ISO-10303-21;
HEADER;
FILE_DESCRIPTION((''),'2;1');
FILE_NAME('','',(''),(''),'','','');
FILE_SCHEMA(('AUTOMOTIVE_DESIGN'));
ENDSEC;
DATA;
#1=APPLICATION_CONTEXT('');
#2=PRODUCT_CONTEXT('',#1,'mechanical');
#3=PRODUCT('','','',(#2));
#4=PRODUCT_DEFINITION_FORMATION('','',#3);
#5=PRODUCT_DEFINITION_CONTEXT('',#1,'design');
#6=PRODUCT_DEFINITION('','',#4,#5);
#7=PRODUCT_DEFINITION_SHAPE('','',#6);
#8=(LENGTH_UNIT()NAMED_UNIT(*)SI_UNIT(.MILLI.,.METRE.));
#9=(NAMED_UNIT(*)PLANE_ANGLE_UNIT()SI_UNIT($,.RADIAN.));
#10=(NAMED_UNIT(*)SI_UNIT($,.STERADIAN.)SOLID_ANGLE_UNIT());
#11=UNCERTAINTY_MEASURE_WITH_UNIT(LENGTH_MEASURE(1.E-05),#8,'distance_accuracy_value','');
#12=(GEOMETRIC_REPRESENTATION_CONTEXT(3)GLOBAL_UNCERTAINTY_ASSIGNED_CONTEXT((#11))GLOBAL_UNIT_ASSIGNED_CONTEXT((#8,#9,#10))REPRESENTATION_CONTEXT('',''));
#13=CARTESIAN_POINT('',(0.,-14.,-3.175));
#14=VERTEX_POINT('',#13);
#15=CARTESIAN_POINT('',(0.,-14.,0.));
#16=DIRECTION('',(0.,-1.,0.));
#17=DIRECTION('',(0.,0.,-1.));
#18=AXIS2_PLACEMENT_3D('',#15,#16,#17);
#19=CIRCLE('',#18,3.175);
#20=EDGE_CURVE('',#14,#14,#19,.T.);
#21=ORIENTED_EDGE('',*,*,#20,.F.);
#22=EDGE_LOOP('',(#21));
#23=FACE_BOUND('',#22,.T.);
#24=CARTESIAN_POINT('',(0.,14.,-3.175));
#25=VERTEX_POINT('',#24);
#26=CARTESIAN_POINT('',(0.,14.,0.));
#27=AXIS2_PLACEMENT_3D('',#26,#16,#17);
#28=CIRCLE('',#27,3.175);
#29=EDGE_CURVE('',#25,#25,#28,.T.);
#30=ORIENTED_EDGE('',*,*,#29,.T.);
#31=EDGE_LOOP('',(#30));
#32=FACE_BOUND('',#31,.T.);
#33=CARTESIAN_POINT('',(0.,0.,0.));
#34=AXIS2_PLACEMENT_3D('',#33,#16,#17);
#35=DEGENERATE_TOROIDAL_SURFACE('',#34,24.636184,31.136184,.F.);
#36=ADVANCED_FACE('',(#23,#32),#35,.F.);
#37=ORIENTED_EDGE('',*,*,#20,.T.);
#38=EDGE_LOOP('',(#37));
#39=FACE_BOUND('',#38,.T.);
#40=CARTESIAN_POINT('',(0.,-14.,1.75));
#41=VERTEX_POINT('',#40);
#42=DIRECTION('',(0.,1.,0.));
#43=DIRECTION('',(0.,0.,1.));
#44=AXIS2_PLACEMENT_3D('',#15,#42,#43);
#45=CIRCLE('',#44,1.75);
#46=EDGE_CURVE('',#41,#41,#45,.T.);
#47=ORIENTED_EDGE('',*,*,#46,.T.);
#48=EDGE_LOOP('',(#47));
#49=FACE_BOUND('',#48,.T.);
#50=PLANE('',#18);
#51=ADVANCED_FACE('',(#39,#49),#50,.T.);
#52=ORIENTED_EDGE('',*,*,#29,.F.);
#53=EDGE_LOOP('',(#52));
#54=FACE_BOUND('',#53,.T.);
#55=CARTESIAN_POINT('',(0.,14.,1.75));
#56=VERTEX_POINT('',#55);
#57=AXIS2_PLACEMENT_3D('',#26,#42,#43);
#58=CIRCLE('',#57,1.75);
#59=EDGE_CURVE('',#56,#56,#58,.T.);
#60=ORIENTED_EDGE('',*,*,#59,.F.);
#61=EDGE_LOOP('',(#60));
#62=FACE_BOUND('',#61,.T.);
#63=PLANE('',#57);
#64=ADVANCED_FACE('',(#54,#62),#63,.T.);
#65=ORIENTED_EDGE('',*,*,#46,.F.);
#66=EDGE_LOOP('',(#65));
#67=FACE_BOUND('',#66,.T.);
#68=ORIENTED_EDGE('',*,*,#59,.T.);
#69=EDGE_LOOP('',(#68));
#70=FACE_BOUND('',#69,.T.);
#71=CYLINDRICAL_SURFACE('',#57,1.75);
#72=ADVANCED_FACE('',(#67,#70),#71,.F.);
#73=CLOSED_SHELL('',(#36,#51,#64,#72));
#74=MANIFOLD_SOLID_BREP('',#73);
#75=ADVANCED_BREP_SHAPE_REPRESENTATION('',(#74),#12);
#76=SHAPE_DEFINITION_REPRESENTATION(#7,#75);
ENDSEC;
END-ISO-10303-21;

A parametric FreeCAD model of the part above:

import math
import FreeCAD as App
import Part
import Sketcher

V = App.Vector
Q = App.Units.Quantity

doc = App.newDocument("Part")
body = doc.addObject("PartDesign::Body", "Body")

sketch1 = body.newObject("Sketcher::SketchObject", "Sketch")
sketch1.AttachmentSupport = (doc.getObject("XY_Plane"), [""])
sketch1.MapMode = "FlatFace"
sketch1.addGeometry([
    Part.LineSegment(V(0, 14, 0), V(0, -14, 0)),
    Part.LineSegment(V(0, -14, 0), V(3.2, -14, 0)),
    Part.ArcOfCircle(Part.Circle(V(-24.6, 0, 0), V(0, 0, 1), 31.1), math.radians(-27), math.radians(27)),
    Part.LineSegment(V(3.2, 14, 0), V(0, 14, 0)),
], False)
sketch1.addConstraint([
    Sketcher.Constraint("Coincident", 0, 2, 1, 1),
    Sketcher.Constraint("Coincident", 1, 2, 2, 1),
    Sketcher.Constraint("Coincident", 2, 2, 3, 1),
    Sketcher.Constraint("Coincident", 3, 2, 0, 1),
    Sketcher.Constraint("Vertical", 0),
    Sketcher.Constraint("Horizontal", 1),
    Sketcher.Constraint("Horizontal", 3),
    Sketcher.Constraint("Symmetric", 0, 2, 3, 2, -1, 1),
    Sketcher.Constraint("PointOnObject", 2, 3, -1),
    Sketcher.Constraint("DistanceY", 0, 2, 0, 1, Q("28 mm")),
    Sketcher.Constraint("DistanceX", 1, 1, 1, 2, Q("3.175 mm")),
    Sketcher.Constraint("Radius", 2, Q("31.136184 mm")),
])
revolution = body.newObject("PartDesign::Revolution", "Revolution")
revolution.Profile = sketch1
revolution.ReferenceAxis = (sketch1, ["V_Axis"])
revolution.Angle = 360

sketch2 = body.newObject("Sketcher::SketchObject", "Sketch001")
sketch2.AttachmentSupport = (doc.getObject("XZ_Plane"), [""])
sketch2.MapMode = "FlatFace"
sketch2.AttachmentOffset = App.Placement(V(0, 0, -14), App.Rotation())
sketch2.addGeometry(Part.Circle(V(0, 0, 0), V(0, 0, 1), 1.8), False)
sketch2.addConstraint([
    Sketcher.Constraint("Coincident", 0, 3, -1, 1),
    Sketcher.Constraint("Diameter", 0, Q("3.5 mm")),
])
doc.recompute()
hole = body.newObject("PartDesign::Hole", "Hole")
hole.Profile = sketch2
hole.ThreadType = "None"
hole.Diameter = 3.5
hole.DepthType = "ThroughAll"
hole.Reversed = True

doc.recompute()
